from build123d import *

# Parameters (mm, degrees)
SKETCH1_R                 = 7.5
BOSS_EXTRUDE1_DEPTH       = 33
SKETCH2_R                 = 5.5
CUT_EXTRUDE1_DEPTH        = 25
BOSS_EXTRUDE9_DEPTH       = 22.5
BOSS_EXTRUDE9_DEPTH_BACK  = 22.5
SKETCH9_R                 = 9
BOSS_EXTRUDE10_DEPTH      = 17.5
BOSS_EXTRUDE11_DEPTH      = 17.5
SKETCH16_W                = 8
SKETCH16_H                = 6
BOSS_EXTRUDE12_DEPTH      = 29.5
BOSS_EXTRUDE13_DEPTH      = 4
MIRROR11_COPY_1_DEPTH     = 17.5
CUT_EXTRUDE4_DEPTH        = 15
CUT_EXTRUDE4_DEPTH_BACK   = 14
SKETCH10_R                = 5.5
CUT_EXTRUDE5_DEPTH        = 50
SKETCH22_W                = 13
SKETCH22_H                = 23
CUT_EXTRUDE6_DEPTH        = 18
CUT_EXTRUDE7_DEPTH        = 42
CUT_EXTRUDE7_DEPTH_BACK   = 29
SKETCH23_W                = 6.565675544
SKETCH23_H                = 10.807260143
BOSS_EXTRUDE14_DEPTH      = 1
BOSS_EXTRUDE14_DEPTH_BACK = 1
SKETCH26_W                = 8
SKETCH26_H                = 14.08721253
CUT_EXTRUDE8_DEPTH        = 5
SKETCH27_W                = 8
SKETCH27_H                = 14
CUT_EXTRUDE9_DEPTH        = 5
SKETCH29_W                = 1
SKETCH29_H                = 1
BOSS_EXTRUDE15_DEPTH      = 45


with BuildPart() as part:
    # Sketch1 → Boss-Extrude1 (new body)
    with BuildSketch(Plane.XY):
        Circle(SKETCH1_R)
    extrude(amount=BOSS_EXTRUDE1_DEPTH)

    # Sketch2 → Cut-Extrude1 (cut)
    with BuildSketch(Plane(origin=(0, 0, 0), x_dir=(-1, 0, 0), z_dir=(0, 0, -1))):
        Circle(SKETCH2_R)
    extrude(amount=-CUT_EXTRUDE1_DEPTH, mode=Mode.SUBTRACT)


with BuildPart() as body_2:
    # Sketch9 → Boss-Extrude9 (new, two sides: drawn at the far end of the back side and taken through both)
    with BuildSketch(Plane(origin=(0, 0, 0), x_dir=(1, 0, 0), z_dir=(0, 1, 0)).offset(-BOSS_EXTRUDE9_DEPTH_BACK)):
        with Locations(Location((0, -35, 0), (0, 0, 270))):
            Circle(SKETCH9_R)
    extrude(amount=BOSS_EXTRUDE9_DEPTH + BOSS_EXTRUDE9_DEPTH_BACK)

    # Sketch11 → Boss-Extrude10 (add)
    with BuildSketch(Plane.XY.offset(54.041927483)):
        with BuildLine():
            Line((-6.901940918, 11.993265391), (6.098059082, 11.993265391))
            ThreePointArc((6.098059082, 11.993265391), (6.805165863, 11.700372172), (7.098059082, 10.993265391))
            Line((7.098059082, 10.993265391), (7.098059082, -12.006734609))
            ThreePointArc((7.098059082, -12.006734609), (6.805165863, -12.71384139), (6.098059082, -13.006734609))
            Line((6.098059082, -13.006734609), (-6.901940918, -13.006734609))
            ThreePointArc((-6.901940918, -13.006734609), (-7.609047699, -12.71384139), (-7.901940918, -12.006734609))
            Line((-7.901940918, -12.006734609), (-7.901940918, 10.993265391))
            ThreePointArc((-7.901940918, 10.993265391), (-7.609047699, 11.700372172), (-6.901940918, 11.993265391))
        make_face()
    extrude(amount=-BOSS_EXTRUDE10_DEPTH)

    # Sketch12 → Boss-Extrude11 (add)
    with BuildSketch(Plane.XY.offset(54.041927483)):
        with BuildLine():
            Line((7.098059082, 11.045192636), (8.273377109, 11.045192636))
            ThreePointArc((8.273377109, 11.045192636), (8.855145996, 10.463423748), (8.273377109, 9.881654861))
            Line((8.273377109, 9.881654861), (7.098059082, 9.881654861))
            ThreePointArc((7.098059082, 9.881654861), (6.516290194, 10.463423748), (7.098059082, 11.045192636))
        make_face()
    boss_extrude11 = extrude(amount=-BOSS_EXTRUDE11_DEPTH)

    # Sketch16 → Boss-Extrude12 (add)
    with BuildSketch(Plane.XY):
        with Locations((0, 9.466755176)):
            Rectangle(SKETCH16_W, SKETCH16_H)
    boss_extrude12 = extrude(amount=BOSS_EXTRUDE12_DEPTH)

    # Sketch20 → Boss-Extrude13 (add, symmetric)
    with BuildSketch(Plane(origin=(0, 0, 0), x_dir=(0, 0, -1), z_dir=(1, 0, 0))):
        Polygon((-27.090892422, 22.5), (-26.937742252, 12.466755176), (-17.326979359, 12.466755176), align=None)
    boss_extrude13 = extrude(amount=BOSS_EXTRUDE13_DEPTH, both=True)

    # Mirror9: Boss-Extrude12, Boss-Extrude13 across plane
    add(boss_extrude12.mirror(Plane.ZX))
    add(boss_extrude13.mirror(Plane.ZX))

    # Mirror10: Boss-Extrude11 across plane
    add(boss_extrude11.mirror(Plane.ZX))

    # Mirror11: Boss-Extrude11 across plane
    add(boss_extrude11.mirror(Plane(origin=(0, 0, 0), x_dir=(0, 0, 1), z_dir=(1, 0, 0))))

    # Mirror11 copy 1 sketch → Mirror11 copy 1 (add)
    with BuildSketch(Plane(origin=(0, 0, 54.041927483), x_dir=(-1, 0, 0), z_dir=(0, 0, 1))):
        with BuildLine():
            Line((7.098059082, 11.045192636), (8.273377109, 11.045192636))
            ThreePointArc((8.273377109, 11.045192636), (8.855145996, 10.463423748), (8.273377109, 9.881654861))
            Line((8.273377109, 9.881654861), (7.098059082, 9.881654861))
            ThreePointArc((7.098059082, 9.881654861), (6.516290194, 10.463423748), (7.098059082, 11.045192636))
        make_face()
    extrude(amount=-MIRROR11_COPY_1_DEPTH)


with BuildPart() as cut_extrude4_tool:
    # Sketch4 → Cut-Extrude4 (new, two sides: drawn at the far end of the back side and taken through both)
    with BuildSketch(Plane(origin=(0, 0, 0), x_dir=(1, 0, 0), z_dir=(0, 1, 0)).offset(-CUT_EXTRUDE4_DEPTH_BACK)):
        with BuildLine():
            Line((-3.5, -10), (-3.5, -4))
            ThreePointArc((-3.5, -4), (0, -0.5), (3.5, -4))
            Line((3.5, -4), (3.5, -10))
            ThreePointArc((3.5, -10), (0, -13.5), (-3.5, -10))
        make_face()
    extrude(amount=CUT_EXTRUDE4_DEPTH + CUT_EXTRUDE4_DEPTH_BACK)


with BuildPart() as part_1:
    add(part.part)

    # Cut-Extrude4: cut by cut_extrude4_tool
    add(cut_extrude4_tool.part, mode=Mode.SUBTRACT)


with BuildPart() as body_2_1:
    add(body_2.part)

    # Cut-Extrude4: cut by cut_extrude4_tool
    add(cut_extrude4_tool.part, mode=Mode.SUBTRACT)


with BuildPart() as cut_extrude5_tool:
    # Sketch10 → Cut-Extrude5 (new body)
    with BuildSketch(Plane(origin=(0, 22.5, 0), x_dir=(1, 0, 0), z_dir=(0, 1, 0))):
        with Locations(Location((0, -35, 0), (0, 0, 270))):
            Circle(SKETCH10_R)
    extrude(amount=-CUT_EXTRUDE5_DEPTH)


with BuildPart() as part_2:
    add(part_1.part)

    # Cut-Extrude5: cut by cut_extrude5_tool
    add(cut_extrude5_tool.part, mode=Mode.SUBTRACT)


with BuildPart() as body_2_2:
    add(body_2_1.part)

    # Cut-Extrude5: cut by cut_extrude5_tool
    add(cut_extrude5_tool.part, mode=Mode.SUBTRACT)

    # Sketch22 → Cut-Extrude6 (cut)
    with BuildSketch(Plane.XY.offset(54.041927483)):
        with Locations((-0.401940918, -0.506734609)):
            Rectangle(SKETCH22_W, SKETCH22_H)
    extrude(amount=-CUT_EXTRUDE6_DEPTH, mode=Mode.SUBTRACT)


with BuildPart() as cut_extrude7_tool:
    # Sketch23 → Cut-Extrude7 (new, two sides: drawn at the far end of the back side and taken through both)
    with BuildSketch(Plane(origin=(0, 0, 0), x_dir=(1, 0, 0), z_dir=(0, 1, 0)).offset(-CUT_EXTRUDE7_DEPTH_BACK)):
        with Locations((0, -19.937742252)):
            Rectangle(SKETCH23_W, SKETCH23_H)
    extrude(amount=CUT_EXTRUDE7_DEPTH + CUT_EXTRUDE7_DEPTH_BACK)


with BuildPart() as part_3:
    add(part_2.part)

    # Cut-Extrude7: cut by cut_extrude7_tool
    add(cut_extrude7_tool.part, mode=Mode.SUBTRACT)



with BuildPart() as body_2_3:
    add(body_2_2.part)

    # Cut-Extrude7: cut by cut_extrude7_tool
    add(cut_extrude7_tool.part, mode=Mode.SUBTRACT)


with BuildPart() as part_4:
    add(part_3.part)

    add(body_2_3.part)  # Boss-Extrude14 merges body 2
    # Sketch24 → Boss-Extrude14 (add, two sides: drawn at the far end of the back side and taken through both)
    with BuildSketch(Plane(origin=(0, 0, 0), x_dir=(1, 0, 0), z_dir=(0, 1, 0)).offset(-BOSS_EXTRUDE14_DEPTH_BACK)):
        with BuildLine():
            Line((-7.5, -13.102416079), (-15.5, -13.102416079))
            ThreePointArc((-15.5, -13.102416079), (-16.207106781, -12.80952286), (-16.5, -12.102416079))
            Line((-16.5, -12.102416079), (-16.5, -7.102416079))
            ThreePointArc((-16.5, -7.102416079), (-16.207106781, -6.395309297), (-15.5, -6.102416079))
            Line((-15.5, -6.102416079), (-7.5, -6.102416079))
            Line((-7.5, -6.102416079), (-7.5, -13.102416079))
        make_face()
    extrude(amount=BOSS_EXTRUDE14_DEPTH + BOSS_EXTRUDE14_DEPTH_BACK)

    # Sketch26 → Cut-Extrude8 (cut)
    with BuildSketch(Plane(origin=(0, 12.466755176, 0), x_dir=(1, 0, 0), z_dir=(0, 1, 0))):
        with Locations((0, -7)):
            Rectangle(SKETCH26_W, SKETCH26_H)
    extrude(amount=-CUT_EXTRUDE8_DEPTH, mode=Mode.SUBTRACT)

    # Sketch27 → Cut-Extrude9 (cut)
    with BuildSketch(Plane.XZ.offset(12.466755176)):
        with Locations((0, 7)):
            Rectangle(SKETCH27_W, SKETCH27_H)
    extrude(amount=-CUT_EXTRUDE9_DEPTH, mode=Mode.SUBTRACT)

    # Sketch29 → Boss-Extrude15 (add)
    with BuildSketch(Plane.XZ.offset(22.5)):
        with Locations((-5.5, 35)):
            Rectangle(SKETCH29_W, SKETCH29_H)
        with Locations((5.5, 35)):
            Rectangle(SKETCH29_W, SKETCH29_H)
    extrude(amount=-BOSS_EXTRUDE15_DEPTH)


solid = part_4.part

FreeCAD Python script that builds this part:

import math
import FreeCAD as App
import Part
import Sketcher

doc = App.newDocument("Part")
body = doc.addObject("PartDesign::Body", "Body")

# Sketch on XY plane
sketch1 = body.newObject("Sketcher::SketchObject", "Sketch")
sketch1.AttachmentSupport = (doc.getObject("XY_Plane"), [""])
sketch1.MapMode = "FlatFace"
sketch1.addGeometry(Part.Circle(App.Vector(0, 0, 0), App.Vector(0, 0, 1), 8), False)
sketch1.addConstraint([
    Sketcher.Constraint("Coincident", 0, 3, -1, 1),
    Sketcher.Constraint("Diameter", 0, 15.0),
])
pad1 = body.newObject("PartDesign::Pad", "Pad")
pad1.Profile = sketch1
pad1.Length = 33

# Sketch on XY plane
sketch2 = body.newObject("Sketcher::SketchObject", "Sketch001")
sketch2.AttachmentSupport = (doc.getObject("XY_Plane"), [""])
sketch2.MapMode = "FlatFace"
sketch2.addGeometry(Part.Circle(App.Vector(0, 0, 0), App.Vector(0, 0, 1), 6), False)
sketch2.addConstraint([
    Sketcher.Constraint("Coincident", 0, 3, -1, 1),
    Sketcher.Constraint("Diameter", 0, 11.0),
])
pocket1 = body.newObject("PartDesign::Pocket", "Pocket")
pocket1.Profile = sketch2
pocket1.Length = 25
pocket1.Reversed = True
body2 = doc.addObject("PartDesign::Body", "Body001")

# Sketch on XZ plane
sketch3 = body2.newObject("Sketcher::SketchObject", "Sketch002")
sketch3.AttachmentSupport = (doc.getObject("XZ_Plane001"), [""])
sketch3.MapMode = "FlatFace"
sketch3.addGeometry(Part.Circle(App.Vector(0, 35, 0), App.Vector(0, 0, 1), 9), False)
sketch3.addConstraint([
    Sketcher.Constraint("PointOnObject", 0, 3, -2),
    Sketcher.Constraint("Diameter", 0, 18.0),
    Sketcher.Constraint("DistanceY", -1, 1, 0, 3, 35.0),
])
pad2 = body2.newObject("PartDesign::Pad", "Pad001")
pad2.Profile = sketch3
pad2.Type = "TwoLengths"
pad2.Length = 22.5
pad2.Length2 = 22.5
pad2.Reversed = True

# Sketch on XY plane
sketch4 = body2.newObject("Sketcher::SketchObject", "Sketch003")
sketch4.AttachmentSupport = (doc.getObject("XY_Plane001"), [""])
sketch4.MapMode = "FlatFace"
sketch4.AttachmentOffset = App.Placement(App.Vector(0, 0, 54.041927), App.Rotation())
sketch4.addGeometry([
    Part.LineSegment(App.Vector(6.1, 12, 0), App.Vector(-6.9, 12, 0)),  # 0
    Part.ArcOfCircle(Part.Circle(App.Vector(-6.9, 11, 0), App.Vector(0, 0, 1), 1), math.radians(90), math.radians(180)),  # 1
    Part.LineSegment(App.Vector(-7.9, 11, 0), App.Vector(-7.9, -12, 0)),  # 2
    Part.ArcOfCircle(Part.Circle(App.Vector(-6.9, -12, 0), App.Vector(0, 0, 1), 1), math.radians(-180), math.radians(-90)),  # 3
    Part.LineSegment(App.Vector(-6.9, -13, 0), App.Vector(6.1, -13, 0)),  # 4
    Part.ArcOfCircle(Part.Circle(App.Vector(6.1, -12, 0), App.Vector(0, 0, 1), 1), math.radians(-90), math.radians(0)),  # 5
    Part.LineSegment(App.Vector(7.1, -12, 0), App.Vector(7.1, 11, 0)),  # 6
    Part.ArcOfCircle(Part.Circle(App.Vector(6.1, 11, 0), App.Vector(0, 0, 1), 1), math.radians(0), math.radians(90)),  # 7
], False)
sketch4.addConstraint([
    Sketcher.Constraint("Tangent", 0, 2, 1, 1),
    Sketcher.Constraint("Tangent", 1, 2, 2, 1),
    Sketcher.Constraint("Tangent", 2, 2, 3, 1),
    Sketcher.Constraint("Tangent", 3, 2, 4, 1),
    Sketcher.Constraint("Tangent", 4, 2, 5, 1),
    Sketcher.Constraint("Tangent", 5, 2, 6, 1),
    Sketcher.Constraint("Tangent", 6, 2, 7, 1),
    Sketcher.Constraint("Tangent", 7, 2, 0, 1),
    Sketcher.Constraint("Horizontal", 0),
    Sketcher.Constraint("Vertical", 2),
    Sketcher.Constraint("Horizontal", 4),
    Sketcher.Constraint("Vertical", 6),
    Sketcher.Constraint("Equal", 1, 3),
    Sketcher.Constraint("Equal", 3, 5),
    Sketcher.Constraint("Equal", 5, 7),
    Sketcher.Constraint("Radius", 1, 1.0),
    Sketcher.Constraint("DistanceX", 0, 2, 0, 1, 13.0),
    Sketcher.Constraint("DistanceY", 2, 2, 2, 1, 23.0),
    Sketcher.Constraint("DistanceX", 1, 3, -1, 1, 6.901941),
    Sketcher.Constraint("DistanceY", -1, 1, 1, 3, 10.993265),
])
pad3 = body2.newObject("PartDesign::Pad", "Pad002")
pad3.Profile = sketch4
pad3.Length = 17.5
pad3.Reversed = True

# Sketch on XY plane
sketch5 = body2.newObject("Sketcher::SketchObject", "Sketch004")
sketch5.AttachmentSupport = (doc.getObject("XY_Plane001"), [""])
sketch5.MapMode = "FlatFace"
sketch5.AttachmentOffset = App.Placement(App.Vector(0, 0, 54.041927), App.Rotation())
sketch5.addGeometry([
    Part.LineSegment(App.Vector(8.3, 11, 0), App.Vector(7.1, 11, 0)),
    Part.ArcOfCircle(Part.Circle(App.Vector(7.1, 10.5, 0), App.Vector(0, 0, 1), 0.6), math.radians(90), math.radians(270)),
    Part.LineSegment(App.Vector(7.1, 9.9, 0), App.Vector(8.3, 9.9, 0)),
    Part.ArcOfCircle(Part.Circle(App.Vector(8.3, 10.5, 0), App.Vector(0, 0, 1), 0.6), math.radians(-90), math.radians(90)),
], False)
sketch5.addConstraint([
    Sketcher.Constraint("Tangent", 0, 2, 1, 1),
    Sketcher.Constraint("Tangent", 1, 2, 2, 1),
    Sketcher.Constraint("Tangent", 2, 2, 3, 1),
    Sketcher.Constraint("Tangent", 3, 2, 0, 1),
    Sketcher.Constraint("Horizontal", 0),
    Sketcher.Constraint("Horizontal", 2),
    Sketcher.Constraint("Radius", 1, 0.581769),
    Sketcher.Constraint("DistanceX", 0, 2, 0, 1, 1.175318),
    Sketcher.Constraint("DistanceX", -1, 1, 1, 3, 7.098059),
    Sketcher.Constraint("DistanceY", -1, 1, 1, 3, 10.463424),
])
pad4 = body2.newObject("PartDesign::Pad", "Pad003")
pad4.Profile = sketch5
pad4.Length = 17.5
pad4.Reversed = True

# Sketch on XY plane
sketch6 = body2.newObject("Sketcher::SketchObject", "Sketch005")
sketch6.AttachmentSupport = (doc.getObject("XY_Plane001"), [""])
sketch6.MapMode = "FlatFace"
sketch6.addGeometry([
    Part.LineSegment(App.Vector(-4, 12, 0), App.Vector(-4, 6, 0)),
    Part.LineSegment(App.Vector(-4, 6, 0), App.Vector(4, 6, 0)),
    Part.LineSegment(App.Vector(4, 6, 0), App.Vector(4, 12, 0)),
    Part.LineSegment(App.Vector(4, 12, 0), App.Vector(-4, 12, 0)),
], False)
sketch6.addConstraint([
    Sketcher.Constraint("Coincident", 0, 2, 1, 1),
    Sketcher.Constraint("Coincident", 1, 2, 2, 1),
    Sketcher.Constraint("Coincident", 2, 2, 3, 1),
    Sketcher.Constraint("Coincident", 3, 2, 0, 1),
    Sketcher.Constraint("Vertical", 0),
    Sketcher.Constraint("Horizontal", 1),
    Sketcher.Constraint("Vertical", 2),
    Sketcher.Constraint("Horizontal", 3),
    Sketcher.Constraint("DistanceX", 1, 1, 1, 2, 8.0),
    Sketcher.Constraint("DistanceY", 0, 2, 0, 1, 6.0),
    Sketcher.Constraint("DistanceX", 0, 2, -1, 1, 4.0),
    Sketcher.Constraint("DistanceY", -1, 1, 0, 2, 6.466755),
])
pad5 = body2.newObject("PartDesign::Pad", "Pad004")
pad5.Profile = sketch6
pad5.Length = 29.5

# Sketch on YZ plane
sketch7 = body2.newObject("Sketcher::SketchObject", "Sketch006")
sketch7.AttachmentSupport = (doc.getObject("YZ_Plane001"), [""])
sketch7.MapMode = "FlatFace"
sketch7.addGeometry([
    Part.LineSegment(App.Vector(22, 27, 0), App.Vector(12, 27, 0)),
    Part.LineSegment(App.Vector(12, 27, 0), App.Vector(12, 17, 0)),
    Part.LineSegment(App.Vector(12, 17, 0), App.Vector(22, 27, 0)),
], False)
sketch7.addConstraint([
    Sketcher.Constraint("Coincident", 0, 2, 1, 1),
    Sketcher.Constraint("Coincident", 1, 2, 2, 1),
    Sketcher.Constraint("Coincident", 2, 2, 0, 1),
    Sketcher.Constraint("Vertical", 1),
    Sketcher.Constraint("Distance", 2, 14.0),
    Sketcher.Constraint("DistanceX", -1, 1, 2, 2, 22.5),
    Sketcher.Constraint("DistanceY", 1, 2, 1, 1, 9.610763),
    Sketcher.Constraint("DistanceY", -1, 1, 1, 2, 17.326979),
    Sketcher.Constraint("DistanceY", 0, 2, 2, 2, 0.15315),
])
pad6 = body2.newObject("PartDesign::Pad", "Pad005")
pad6.Profile = sketch7
pad6.Length = 8
pad6.Midplane = True
doc.recompute()

mirrored = body2.newObject("PartDesign::Mirrored", "Mirrored")
mirrored.Originals = [pad5, pad6]
mirrored.MirrorPlane = (doc.getObject("XZ_Plane001"), [""])
body2.Tip = mirrored
doc.recompute()

mirrored2 = body2.newObject("PartDesign::Mirrored", "Mirrored001")
mirrored2.Originals = [pad4]
mirrored2.MirrorPlane = (doc.getObject("XZ_Plane001"), [""])
body2.Tip = mirrored2
doc.recompute()

mirrored3 = body2.newObject("PartDesign::Mirrored", "Mirrored002")
mirrored3.Originals = [pad4]
mirrored3.MirrorPlane = (doc.getObject("YZ_Plane001"), [""])
body2.Tip = mirrored3

# Sketch on XY plane
sketch8 = body2.newObject("Sketcher::SketchObject", "Sketch007")
sketch8.AttachmentSupport = (doc.getObject("XY_Plane001"), [""])
sketch8.MapMode = "FlatFace"
sketch8.AttachmentOffset = App.Placement(App.Vector(0, 0, 54.041927), App.Rotation())
sketch8.addGeometry([
    Part.LineSegment(App.Vector(-8.3, -11, 0), App.Vector(-7.1, -11, 0)),
    Part.ArcOfCircle(Part.Circle(App.Vector(-7.1, -10.5, 0), App.Vector(0, 0, 1), 0.6), math.radians(-90), math.radians(90)),
    Part.LineSegment(App.Vector(-7.1, -9.9, 0), App.Vector(-8.3, -9.9, 0)),
    Part.ArcOfCircle(Part.Circle(App.Vector(-8.3, -10.5, 0), App.Vector(0, 0, 1), 0.6), math.radians(90), math.radians(270)),
], False)
sketch8.addConstraint([
    Sketcher.Constraint("Tangent", 0, 2, 1, 1),
    Sketcher.Constraint("Tangent", 1, 2, 2, 1),
    Sketcher.Constraint("Tangent", 2, 2, 3, 1),
    Sketcher.Constraint("Tangent", 3, 2, 0, 1),
    Sketcher.Constraint("Horizontal", 0),
    Sketcher.Constraint("Horizontal", 2),
    Sketcher.Constraint("Radius", 1, 0.581769),
    Sketcher.Constraint("DistanceX", 0, 1, 0, 2, 1.175318),
    Sketcher.Constraint("DistanceX", 1, 3, -1, 1, 7.098059),
    Sketcher.Constraint("DistanceY", 1, 3, -1, 1, 10.463424),
])
pad7 = body2.newObject("PartDesign::Pad", "Pad006")
pad7.Profile = sketch8
pad7.Length = 17.5
pad7.Reversed = True
body3 = doc.addObject("PartDesign::Body", "Body002")

# Sketch on XZ plane
sketch9 = body3.newObject("Sketcher::SketchObject", "Sketch008")
sketch9.AttachmentSupport = (doc.getObject("XZ_Plane002"), [""])
sketch9.MapMode = "FlatFace"
sketch9.addGeometry([
    Part.LineSegment(App.Vector(-3.5, 4, 0), App.Vector(-3.5, 10, 0)),
    Part.ArcOfCircle(Part.Circle(App.Vector(0, 10, 0), App.Vector(0, 0, 1), 3.5), math.radians(0), math.radians(180)),
    Part.LineSegment(App.Vector(3.5, 10, 0), App.Vector(3.5, 4, 0)),
    Part.ArcOfCircle(Part.Circle(App.Vector(0, 4, 0), App.Vector(0, 0, 1), 3.5), math.radians(180), math.radians(360)),
], False)
sketch9.addConstraint([
    Sketcher.Constraint("Tangent", 0, 2, 1, 2),
    Sketcher.Constraint("Tangent", 1, 1, 2, 1),
    Sketcher.Constraint("Tangent", 2, 2, 3, 2),
    Sketcher.Constraint("Tangent", 3, 1, 0, 1),
    Sketcher.Constraint("Vertical", 0),
    Sketcher.Constraint("Vertical", 2),
    Sketcher.Constraint("PointOnObject", 1, 3, -2),
    Sketcher.Constraint("Radius", 1, 3.5),
    Sketcher.Constraint("DistanceY", 0, 1, 0, 2, 6.0),
    Sketcher.Constraint("DistanceY", -1, 1, 1, 3, 10.0),
])
pad8 = body3.newObject("PartDesign::Pad", "Pad007")
pad8.Profile = sketch9
pad8.Type = "TwoLengths"
pad8.Length = 15
pad8.Length2 = 14
pad8.Reversed = True
doc.recompute()

body4 = doc.addObject("PartDesign::Body", "Body003")
body4.BaseFeature = body3
boolean = body.newObject("PartDesign::Boolean", "Boolean")
boolean.Type = "Cut"
boolean.addObjects([body4])
doc.recompute()

boolean2 = body2.newObject("PartDesign::Boolean", "Boolean001")
boolean2.Type = "Cut"
boolean2.addObjects([body3])
body5 = doc.addObject("PartDesign::Body", "Body004")

# Sketch on XZ plane
sketch10 = body5.newObject("Sketcher::SketchObject", "Sketch009")
sketch10.AttachmentSupport = (doc.getObject("XZ_Plane004"), [""])
sketch10.MapMode = "FlatFace"
sketch10.AttachmentOffset = App.Placement(App.Vector(0, 0, -22.5), App.Rotation())
sketch10.addGeometry(Part.Circle(App.Vector(0, 35, 0), App.Vector(0, 0, 1), 6), False)
sketch10.addConstraint([
    Sketcher.Constraint("PointOnObject", 0, 3, -2),
    Sketcher.Constraint("Diameter", 0, 11.0),
    Sketcher.Constraint("DistanceY", -1, 1, 0, 3, 35.0),
])
pad9 = body5.newObject("PartDesign::Pad", "Pad008")
pad9.Profile = sketch10
pad9.Length = 50
doc.recompute()

body6 = doc.addObject("PartDesign::Body", "Body005")
body6.BaseFeature = body5
boolean3 = body.newObject("PartDesign::Boolean", "Boolean002")
boolean3.Type = "Cut"
boolean3.addObjects([body6])
doc.recompute()

boolean4 = body2.newObject("PartDesign::Boolean", "Boolean003")
boolean4.Type = "Cut"
boolean4.addObjects([body5])

# Sketch on XY plane
sketch11 = body2.newObject("Sketcher::SketchObject", "Sketch010")
sketch11.AttachmentSupport = (doc.getObject("XY_Plane001"), [""])
sketch11.MapMode = "FlatFace"
sketch11.AttachmentOffset = App.Placement(App.Vector(0, 0, 54.041927), App.Rotation())
sketch11.addGeometry([
    Part.LineSegment(App.Vector(-7, 11, 0), App.Vector(-7, -12, 0)),
    Part.LineSegment(App.Vector(-7, -12, 0), App.Vector(6, -12, 0)),
    Part.LineSegment(App.Vector(6, -12, 0), App.Vector(6, 11, 0)),
    Part.LineSegment(App.Vector(6, 11, 0), App.Vector(-7, 11, 0)),
], False)
sketch11.addConstraint([
    Sketcher.Constraint("Coincident", 0, 2, 1, 1),
    Sketcher.Constraint("Coincident", 1, 2, 2, 1),
    Sketcher.Constraint("Coincident", 2, 2, 3, 1),
    Sketcher.Constraint("Coincident", 3, 2, 0, 1),
    Sketcher.Constraint("Vertical", 0),
    Sketcher.Constraint("Horizontal", 1),
    Sketcher.Constraint("Vertical", 2),
    Sketcher.Constraint("Horizontal", 3),
    Sketcher.Constraint("DistanceX", 1, 1, 1, 2, 13.0),
    Sketcher.Constraint("DistanceY", 0, 2, 0, 1, 23.0),
    Sketcher.Constraint("DistanceX", 0, 2, -1, 1, 6.901941),
    Sketcher.Constraint("DistanceY", 0, 2, -1, 1, 12.006735),
])
pocket2 = body2.newObject("PartDesign::Pocket", "Pocket001")
pocket2.Profile = sketch11
pocket2.Length = 18
body7 = doc.addObject("PartDesign::Body", "Body006")

# Sketch on XZ plane
sketch12 = body7.newObject("Sketcher::SketchObject", "Sketch011")
sketch12.AttachmentSupport = (doc.getObject("XZ_Plane006"), [""])
sketch12.MapMode = "FlatFace"
sketch12.addGeometry([
    Part.LineSegment(App.Vector(-3, 15, 0), App.Vector(-3, 25, 0)),
    Part.LineSegment(App.Vector(-3, 25, 0), App.Vector(3, 25, 0)),
    Part.LineSegment(App.Vector(3, 25, 0), App.Vector(3, 15, 0)),
    Part.LineSegment(App.Vector(3, 15, 0), App.Vector(-3, 15, 0)),
], False)
sketch12.addConstraint([
    Sketcher.Constraint("Coincident", 0, 2, 1, 1),
    Sketcher.Constraint("Coincident", 1, 2, 2, 1),
    Sketcher.Constraint("Coincident", 2, 2, 3, 1),
    Sketcher.Constraint("Coincident", 3, 2, 0, 1),
    Sketcher.Constraint("Vertical", 0),
    Sketcher.Constraint("Horizontal", 1),
    Sketcher.Constraint("Vertical", 2),
    Sketcher.Constraint("Horizontal", 3),
    Sketcher.Constraint("DistanceY", 0, 1, 0, 2, 10.80726),
    Sketcher.Constraint("DistanceX", 1, 1, 1, 2, 6.565676),
    Sketcher.Constraint("DistanceX", 0, 2, -1, 1, 3.282838),
    Sketcher.Constraint("DistanceY", -1, 1, 0, 2, 25.341372),
])
pad10 = body7.newObject("PartDesign::Pad", "Pad009")
pad10.Profile = sketch12
pad10.Type = "TwoLengths"
pad10.Length = 42
pad10.Length2 = 29
pad10.Reversed = True
doc.recompute()

body8 = doc.addObject("PartDesign::Body", "Body007")
body8.BaseFeature = body7
boolean5 = body.newObject("PartDesign::Boolean", "Boolean004")
boolean5.Type = "Cut"
boolean5.addObjects([body8])
doc.recompute()

boolean6 = body2.newObject("PartDesign::Boolean", "Boolean005")
boolean6.Type = "Cut"
boolean6.addObjects([body7])
body.AllowCompound = True
doc.recompute()

boolean7 = body.newObject("PartDesign::Boolean", "Boolean006")
boolean7.Type = "Fuse"
boolean7.addObjects([body2])

# Sketch on XZ plane
sketch13 = body.newObject("Sketcher::SketchObject", "Sketch012")
sketch13.AttachmentSupport = (doc.getObject("XZ_Plane"), [""])
sketch13.MapMode = "FlatFace"
sketch13.addGeometry([
    Part.LineSegment(App.Vector(-15.5, 13.1, 0), App.Vector(-7.5, 13.1, 0)),  # 0
    Part.LineSegment(App.Vector(-7.5, 13.1, 0), App.Vector(-7.5, 6.1, 0)),  # 1
    Part.LineSegment(App.Vector(-7.5, 6.1, 0), App.Vector(-15.5, 6.1, 0)),  # 2
    Part.ArcOfCircle(Part.Circle(App.Vector(-15.5, 7.1, 0), App.Vector(0, 0, 1), 1), math.radians(180), math.radians(270)),  # 3
    Part.LineSegment(App.Vector(-16.5, 7.1, 0), App.Vector(-16.5, 12.1, 0)),  # 4
    Part.ArcOfCircle(Part.Circle(App.Vector(-15.5, 12.1, 0), App.Vector(0, 0, 1), 1), math.radians(90), math.radians(180)),  # 5
], False)
sketch13.addConstraint([
    Sketcher.Constraint("Coincident", 0, 2, 1, 1),
    Sketcher.Constraint("Coincident", 1, 2, 2, 1),
    Sketcher.Constraint("Tangent", 2, 2, 3, 2),
    Sketcher.Constraint("Tangent", 3, 1, 4, 1),
    Sketcher.Constraint("Tangent", 4, 2, 5, 2),
    Sketcher.Constraint("Tangent", 5, 1, 0, 1),
    Sketcher.Constraint("Horizontal", 0),
    Sketcher.Constraint("Vertical", 1),
    Sketcher.Constraint("Horizontal", 2),
    Sketcher.Constraint("Vertical", 4),
    Sketcher.Constraint("Equal", 3, 5),
    Sketcher.Constraint("Radius", 3, 1.0),
    Sketcher.Constraint("DistanceX", 0, 1, 0, 2, 8.0),
    Sketcher.Constraint("DistanceY", 1, 2, 1, 1, 7.0),
    Sketcher.Constraint("DistanceX", 3, 3, -1, 1, 15.5),
    Sketcher.Constraint("DistanceY", -1, 1, 3, 3, 7.102416),
])
pad11 = body.newObject("PartDesign::Pad", "Pad010")
pad11.Profile = sketch13
pad11.Type = "TwoLengths"
pad11.Length = 1
pad11.Length2 = 1
pad11.Reversed = True

# Sketch on XZ plane
sketch14 = body.newObject("Sketcher::SketchObject", "Sketch013")
sketch14.AttachmentSupport = (doc.getObject("XZ_Plane"), [""])
sketch14.MapMode = "FlatFace"
sketch14.AttachmentOffset = App.Placement(App.Vector(0, 0, -12.466755), App.Rotation())
sketch14.addGeometry([
    Part.LineSegment(App.Vector(-4, 0, 0), App.Vector(-4, 14, 0)),
    Part.LineSegment(App.Vector(-4, 14, 0), App.Vector(4, 14, 0)),
    Part.LineSegment(App.Vector(4, 14, 0), App.Vector(4, 0, 0)),
    Part.LineSegment(App.Vector(4, 0, 0), App.Vector(-4, 0, 0)),
], False)
sketch14.addConstraint([
    Sketcher.Constraint("Coincident", 0, 2, 1, 1),
    Sketcher.Constraint("Coincident", 1, 2, 2, 1),
    Sketcher.Constraint("Coincident", 2, 2, 3, 1),
    Sketcher.Constraint("Coincident", 3, 2, 0, 1),
    Sketcher.Constraint("Vertical", 0),
    Sketcher.Constraint("Horizontal", 1),
    Sketcher.Constraint("Vertical", 2),
    Sketcher.Constraint("Horizontal", 3),
    Sketcher.Constraint("DistanceX", 1, 1, 1, 2, 8.0),
    Sketcher.Constraint("DistanceX", 0, 2, -1, 1, 4.0),
    Sketcher.Constraint("DistanceY", 0, 1, 0, 2, 14.087213),
    Sketcher.Constraint("DistanceY", -1, 1, 0, 2, 14.043606),
])
pocket3 = body.newObject("PartDesign::Pocket", "Pocket002")
pocket3.Profile = sketch14
pocket3.Length = 5
pocket3.Reversed = True

# Sketch on XZ plane
sketch15 = body.newObject("Sketcher::SketchObject", "Sketch014")
sketch15.AttachmentSupport = (doc.getObject("XZ_Plane"), [""])
sketch15.MapMode = "FlatFace"
sketch15.AttachmentOffset = App.Placement(App.Vector(0, 0, 12.466755), App.Rotation())
sketch15.addGeometry([
    Part.LineSegment(App.Vector(-4, 14, 0), App.Vector(-4, 0, 0)),
    Part.LineSegment(App.Vector(-4, 0, 0), App.Vector(4, 0, 0)),
    Part.LineSegment(App.Vector(4, 0, 0), App.Vector(4, 14, 0)),
    Part.LineSegment(App.Vector(4, 14, 0), App.Vector(-4, 14, 0)),
], False)
sketch15.addConstraint([
    Sketcher.Constraint("Coincident", 0, 2, 1, 1),
    Sketcher.Constraint("Coincident", 1, 2, 2, 1),
    Sketcher.Constraint("Coincident", 2, 2, 3, 1),
    Sketcher.Constraint("Coincident", 3, 2, 0, 1),
    Sketcher.Constraint("Vertical", 0),
    Sketcher.Constraint("Horizontal", 1),
    Sketcher.Constraint("Vertical", 2),
    Sketcher.Constraint("Horizontal", 3),
    Sketcher.Constraint("Symmetric", 0, 2, 1, 2, -1, 1),
    Sketcher.Constraint("DistanceX", 1, 1, 1, 2, 8.0),
    Sketcher.Constraint("DistanceY", 0, 2, 0, 1, 14.0),
])
pocket4 = body.newObject("PartDesign::Pocket", "Pocket003")
pocket4.Profile = sketch15
pocket4.Length = 5

# Sketch on XZ plane
sketch16 = body.newObject("Sketcher::SketchObject", "Sketch015")
sketch16.AttachmentSupport = (doc.getObject("XZ_Plane"), [""])
sketch16.MapMode = "FlatFace"
sketch16.AttachmentOffset = App.Placement(App.Vector(0, 0, 22.5), App.Rotation())
sketch16.addGeometry([
    Part.LineSegment(App.Vector(-6, 35.5, 0), App.Vector(-6, 34.5, 0)),  # 0
    Part.LineSegment(App.Vector(-6, 34.5, 0), App.Vector(-5, 34.5, 0)),  # 1
    Part.LineSegment(App.Vector(-5, 34.5, 0), App.Vector(-5, 35.5, 0)),  # 2
    Part.LineSegment(App.Vector(-5, 35.5, 0), App.Vector(-6, 35.5, 0)),  # 3
    Part.LineSegment(App.Vector(5, 35.5, 0), App.Vector(5, 34.5, 0)),  # 4
    Part.LineSegment(App.Vector(5, 34.5, 0), App.Vector(6, 34.5, 0)),  # 5
    Part.LineSegment(App.Vector(6, 34.5, 0), App.Vector(6, 35.5, 0)),  # 6
    Part.LineSegment(App.Vector(6, 35.5, 0), App.Vector(5, 35.5, 0)),  # 7
], False)
sketch16.addConstraint([
    Sketcher.Constraint("Coincident", 0, 2, 1, 1),
    Sketcher.Constraint("Coincident", 1, 2, 2, 1),
    Sketcher.Constraint("Coincident", 2, 2, 3, 1),
    Sketcher.Constraint("Coincident", 3, 2, 0, 1),
    Sketcher.Constraint("Coincident", 4, 2, 5, 1),
    Sketcher.Constraint("Coincident", 5, 2, 6, 1),
    Sketcher.Constraint("Coincident", 6, 2, 7, 1),
    Sketcher.Constraint("Coincident", 7, 2, 4, 1),
    Sketcher.Constraint("Vertical", 0),
    Sketcher.Constraint("Horizontal", 1),
    Sketcher.Constraint("Vertical", 2),
    Sketcher.Constraint("Horizontal", 3),
    Sketcher.Constraint("Vertical", 4),
    Sketcher.Constraint("Horizontal", 5),
    Sketcher.Constraint("Vertical", 6),
    Sketcher.Constraint("Horizontal", 7),
    Sketcher.Constraint("Symmetric", 1, 2, 4, 2, -2),
    Sketcher.Constraint("Symmetric", 3, 2, 6, 2, -2),
    Sketcher.Constraint("Equal", 7, 0),
    Sketcher.Constraint("DistanceX", 1, 1, 1, 2, 1.0),
    Sketcher.Constraint("DistanceX", 0, 2, -1, 1, 6.0),
    Sketcher.Constraint("DistanceY", -1, 1, 0, 2, 34.5),
])
pad12 = body.newObject("PartDesign::Pad", "Pad011")
pad12.Profile = sketch16
pad12.Length = 45
pad12.Reversed = True

doc.recompute()
